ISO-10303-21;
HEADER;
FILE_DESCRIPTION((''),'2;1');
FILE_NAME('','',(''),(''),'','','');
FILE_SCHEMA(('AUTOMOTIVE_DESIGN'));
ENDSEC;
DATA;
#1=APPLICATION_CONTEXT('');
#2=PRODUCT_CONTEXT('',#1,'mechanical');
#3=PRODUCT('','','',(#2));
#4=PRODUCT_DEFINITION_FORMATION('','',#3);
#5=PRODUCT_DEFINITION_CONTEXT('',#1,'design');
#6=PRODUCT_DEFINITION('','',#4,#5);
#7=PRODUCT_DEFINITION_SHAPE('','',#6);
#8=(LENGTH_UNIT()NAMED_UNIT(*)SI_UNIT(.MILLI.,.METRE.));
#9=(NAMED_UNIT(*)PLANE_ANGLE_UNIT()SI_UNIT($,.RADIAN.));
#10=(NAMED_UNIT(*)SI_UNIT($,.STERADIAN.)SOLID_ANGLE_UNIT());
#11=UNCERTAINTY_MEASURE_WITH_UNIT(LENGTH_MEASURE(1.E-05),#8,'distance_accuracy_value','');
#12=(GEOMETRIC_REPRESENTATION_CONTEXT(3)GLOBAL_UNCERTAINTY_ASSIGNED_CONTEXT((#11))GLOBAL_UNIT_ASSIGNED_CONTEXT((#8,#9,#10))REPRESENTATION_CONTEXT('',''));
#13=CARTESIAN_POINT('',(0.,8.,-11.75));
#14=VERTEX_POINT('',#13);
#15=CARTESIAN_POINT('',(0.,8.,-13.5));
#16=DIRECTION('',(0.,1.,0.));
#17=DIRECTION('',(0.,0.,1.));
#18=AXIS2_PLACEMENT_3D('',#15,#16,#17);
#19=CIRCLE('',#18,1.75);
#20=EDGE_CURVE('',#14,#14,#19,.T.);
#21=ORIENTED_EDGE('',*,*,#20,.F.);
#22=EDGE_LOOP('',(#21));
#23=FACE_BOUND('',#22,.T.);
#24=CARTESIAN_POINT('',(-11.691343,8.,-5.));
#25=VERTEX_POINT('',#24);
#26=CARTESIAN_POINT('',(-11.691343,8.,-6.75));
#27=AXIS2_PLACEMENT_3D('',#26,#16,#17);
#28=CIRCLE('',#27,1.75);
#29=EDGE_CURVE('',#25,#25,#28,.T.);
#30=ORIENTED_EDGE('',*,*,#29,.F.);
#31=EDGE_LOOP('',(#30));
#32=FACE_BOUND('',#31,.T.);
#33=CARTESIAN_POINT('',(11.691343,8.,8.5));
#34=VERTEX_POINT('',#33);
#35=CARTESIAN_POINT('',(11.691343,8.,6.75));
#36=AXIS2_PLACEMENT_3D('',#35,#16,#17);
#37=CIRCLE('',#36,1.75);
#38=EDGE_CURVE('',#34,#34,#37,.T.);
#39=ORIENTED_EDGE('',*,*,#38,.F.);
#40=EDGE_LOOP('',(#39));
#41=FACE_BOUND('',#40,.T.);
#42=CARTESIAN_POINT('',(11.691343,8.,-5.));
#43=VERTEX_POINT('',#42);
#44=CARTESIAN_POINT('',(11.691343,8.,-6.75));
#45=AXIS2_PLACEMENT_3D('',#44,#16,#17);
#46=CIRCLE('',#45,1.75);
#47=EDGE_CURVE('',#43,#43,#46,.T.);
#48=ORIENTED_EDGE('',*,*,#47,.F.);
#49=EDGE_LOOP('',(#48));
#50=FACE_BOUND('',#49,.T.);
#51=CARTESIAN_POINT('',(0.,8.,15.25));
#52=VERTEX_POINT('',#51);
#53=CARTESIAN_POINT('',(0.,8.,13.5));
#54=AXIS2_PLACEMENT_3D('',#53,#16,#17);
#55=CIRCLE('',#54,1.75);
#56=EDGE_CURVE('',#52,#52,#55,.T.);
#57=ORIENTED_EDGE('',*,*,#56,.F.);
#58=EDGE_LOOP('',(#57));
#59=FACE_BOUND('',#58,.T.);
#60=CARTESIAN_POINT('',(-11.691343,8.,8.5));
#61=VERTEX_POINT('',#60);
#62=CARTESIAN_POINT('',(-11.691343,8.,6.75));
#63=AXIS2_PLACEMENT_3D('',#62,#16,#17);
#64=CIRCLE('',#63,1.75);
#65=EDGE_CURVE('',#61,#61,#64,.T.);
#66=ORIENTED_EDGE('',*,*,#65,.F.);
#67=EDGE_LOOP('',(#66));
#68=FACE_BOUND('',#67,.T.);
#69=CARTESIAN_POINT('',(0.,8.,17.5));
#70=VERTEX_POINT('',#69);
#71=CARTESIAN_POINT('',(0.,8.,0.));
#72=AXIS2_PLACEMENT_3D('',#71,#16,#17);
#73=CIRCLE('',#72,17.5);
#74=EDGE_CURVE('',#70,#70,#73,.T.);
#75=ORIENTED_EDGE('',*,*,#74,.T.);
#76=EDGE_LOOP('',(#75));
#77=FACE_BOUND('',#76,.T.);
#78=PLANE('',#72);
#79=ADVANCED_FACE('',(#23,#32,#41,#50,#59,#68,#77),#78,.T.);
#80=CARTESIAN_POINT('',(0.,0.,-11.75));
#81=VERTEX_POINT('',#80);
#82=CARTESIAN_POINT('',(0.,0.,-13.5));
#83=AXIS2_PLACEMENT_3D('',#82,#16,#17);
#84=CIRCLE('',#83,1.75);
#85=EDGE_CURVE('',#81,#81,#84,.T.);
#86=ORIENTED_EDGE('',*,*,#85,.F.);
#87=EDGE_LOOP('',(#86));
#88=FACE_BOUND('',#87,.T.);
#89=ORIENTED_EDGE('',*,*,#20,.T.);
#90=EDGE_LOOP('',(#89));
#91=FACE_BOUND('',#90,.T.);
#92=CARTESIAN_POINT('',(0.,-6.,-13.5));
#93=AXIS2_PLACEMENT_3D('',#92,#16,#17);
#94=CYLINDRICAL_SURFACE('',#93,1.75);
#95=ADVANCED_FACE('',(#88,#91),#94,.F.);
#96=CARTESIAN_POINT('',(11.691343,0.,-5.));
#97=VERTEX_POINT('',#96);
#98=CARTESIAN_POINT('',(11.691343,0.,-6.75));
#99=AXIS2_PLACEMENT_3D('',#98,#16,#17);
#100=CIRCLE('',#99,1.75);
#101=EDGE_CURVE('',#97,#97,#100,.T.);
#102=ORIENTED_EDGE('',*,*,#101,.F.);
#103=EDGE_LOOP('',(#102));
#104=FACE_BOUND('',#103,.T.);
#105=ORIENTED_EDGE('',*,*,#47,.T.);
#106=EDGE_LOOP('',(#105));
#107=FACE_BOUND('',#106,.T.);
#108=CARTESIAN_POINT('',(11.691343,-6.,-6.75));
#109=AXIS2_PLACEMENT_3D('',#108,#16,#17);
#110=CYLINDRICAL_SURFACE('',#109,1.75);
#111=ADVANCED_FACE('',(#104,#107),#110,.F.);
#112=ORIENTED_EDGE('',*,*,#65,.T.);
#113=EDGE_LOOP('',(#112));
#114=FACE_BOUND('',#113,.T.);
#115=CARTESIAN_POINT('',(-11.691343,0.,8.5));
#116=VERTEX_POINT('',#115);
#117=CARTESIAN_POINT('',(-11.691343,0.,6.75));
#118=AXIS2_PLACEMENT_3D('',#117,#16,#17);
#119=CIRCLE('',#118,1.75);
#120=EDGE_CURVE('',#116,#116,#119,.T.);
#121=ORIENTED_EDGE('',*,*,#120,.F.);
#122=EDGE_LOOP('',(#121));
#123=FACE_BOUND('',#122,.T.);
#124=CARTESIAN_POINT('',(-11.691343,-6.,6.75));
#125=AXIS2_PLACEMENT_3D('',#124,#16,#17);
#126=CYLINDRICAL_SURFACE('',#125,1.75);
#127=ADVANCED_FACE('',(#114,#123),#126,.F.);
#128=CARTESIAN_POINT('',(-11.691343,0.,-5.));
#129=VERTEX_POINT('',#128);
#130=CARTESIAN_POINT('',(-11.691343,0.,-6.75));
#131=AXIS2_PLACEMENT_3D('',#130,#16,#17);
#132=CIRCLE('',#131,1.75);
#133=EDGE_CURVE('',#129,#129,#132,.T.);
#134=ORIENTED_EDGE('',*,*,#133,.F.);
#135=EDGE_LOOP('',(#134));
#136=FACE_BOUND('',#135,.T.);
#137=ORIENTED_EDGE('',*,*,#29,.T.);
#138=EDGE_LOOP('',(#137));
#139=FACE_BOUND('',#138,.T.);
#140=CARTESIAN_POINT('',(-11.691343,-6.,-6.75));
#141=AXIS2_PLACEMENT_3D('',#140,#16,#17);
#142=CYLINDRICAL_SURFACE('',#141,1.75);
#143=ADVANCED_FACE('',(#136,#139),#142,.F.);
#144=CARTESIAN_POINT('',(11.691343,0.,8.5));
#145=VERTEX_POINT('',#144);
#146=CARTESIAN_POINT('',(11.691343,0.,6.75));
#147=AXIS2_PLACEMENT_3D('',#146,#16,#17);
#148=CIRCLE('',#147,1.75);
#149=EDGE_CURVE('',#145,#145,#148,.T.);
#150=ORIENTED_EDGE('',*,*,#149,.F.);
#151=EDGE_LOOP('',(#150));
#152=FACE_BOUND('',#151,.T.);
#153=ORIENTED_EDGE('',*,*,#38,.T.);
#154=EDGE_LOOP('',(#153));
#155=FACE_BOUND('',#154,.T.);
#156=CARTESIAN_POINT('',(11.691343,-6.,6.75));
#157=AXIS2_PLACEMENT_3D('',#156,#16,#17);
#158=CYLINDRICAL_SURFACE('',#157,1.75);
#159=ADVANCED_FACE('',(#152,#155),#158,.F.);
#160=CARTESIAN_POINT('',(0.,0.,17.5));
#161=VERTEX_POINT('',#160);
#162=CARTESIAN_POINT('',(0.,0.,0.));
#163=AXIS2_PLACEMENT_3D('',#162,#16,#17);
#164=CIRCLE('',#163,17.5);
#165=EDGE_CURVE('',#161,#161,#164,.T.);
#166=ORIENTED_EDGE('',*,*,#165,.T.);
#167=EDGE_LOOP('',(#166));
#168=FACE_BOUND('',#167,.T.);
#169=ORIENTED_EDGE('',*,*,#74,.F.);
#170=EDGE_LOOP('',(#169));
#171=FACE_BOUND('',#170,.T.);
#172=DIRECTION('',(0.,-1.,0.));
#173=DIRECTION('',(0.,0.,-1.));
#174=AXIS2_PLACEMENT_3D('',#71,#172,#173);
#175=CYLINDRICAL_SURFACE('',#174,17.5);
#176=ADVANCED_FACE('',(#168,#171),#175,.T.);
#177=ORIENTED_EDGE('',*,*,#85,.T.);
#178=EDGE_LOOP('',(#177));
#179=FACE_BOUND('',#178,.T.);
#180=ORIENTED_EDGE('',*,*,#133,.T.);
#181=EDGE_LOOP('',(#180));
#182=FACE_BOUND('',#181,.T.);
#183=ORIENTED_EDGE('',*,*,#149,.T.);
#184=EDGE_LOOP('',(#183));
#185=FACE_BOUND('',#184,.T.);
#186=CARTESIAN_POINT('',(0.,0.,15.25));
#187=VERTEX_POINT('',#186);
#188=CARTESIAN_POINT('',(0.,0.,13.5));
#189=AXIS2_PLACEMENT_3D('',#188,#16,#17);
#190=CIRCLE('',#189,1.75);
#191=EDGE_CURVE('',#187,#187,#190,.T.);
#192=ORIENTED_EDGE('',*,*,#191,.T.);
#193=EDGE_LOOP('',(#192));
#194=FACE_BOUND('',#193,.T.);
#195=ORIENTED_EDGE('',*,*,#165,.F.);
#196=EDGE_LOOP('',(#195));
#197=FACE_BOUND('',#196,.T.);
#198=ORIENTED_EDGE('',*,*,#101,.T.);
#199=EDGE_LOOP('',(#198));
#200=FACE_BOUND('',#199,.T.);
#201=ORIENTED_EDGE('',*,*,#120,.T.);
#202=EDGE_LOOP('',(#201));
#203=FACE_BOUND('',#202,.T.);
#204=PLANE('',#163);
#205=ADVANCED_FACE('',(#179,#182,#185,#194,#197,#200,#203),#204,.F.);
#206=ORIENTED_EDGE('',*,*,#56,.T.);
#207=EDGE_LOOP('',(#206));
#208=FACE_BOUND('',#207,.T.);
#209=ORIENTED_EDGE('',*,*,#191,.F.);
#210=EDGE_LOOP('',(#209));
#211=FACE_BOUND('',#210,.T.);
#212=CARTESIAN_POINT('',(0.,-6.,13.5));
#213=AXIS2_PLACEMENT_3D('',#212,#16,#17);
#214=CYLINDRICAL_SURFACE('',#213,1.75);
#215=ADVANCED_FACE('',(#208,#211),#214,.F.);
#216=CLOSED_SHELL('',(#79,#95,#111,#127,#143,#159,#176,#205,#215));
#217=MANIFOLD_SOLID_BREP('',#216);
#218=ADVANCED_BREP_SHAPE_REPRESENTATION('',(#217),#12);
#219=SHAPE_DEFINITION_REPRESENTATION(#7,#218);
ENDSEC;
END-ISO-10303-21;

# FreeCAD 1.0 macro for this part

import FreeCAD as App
import Part
import Sketcher
from FreeCAD import Vector
Q = App.Units.Quantity

doc = App.newDocument("Part")
params = doc.addObject("Spreadsheet::Sheet", "Params")
for row, (alias, value) in enumerate([
    ("sketch1_diameter", "35 mm"),
    ("pad1_length", "8 mm"),
    ("sketch2_diameter", "3.5 mm"),
    ("pocket1_length", "14 mm"),
], start=1):
    params.set(f"A{row}", alias)
    params.set(f"B{row}", "=" + value)
    params.setAlias(f"B{row}", alias)

body = doc.addObject("PartDesign::Body", "Body")

# Sketch on XZ plane
sketch1 = body.newObject("Sketcher::SketchObject", "Sketch")
sketch1.AttachmentSupport = (doc.getObject("XZ_Plane"), [""])
sketch1.MapMode = "FlatFace"
sketch1.addGeometry(Part.Circle(Vector(0, 0, 0), Vector(0, 0, 1), 18), False)
sketch1.addConstraint(Sketcher.Constraint("Coincident", 0, 3, -1, 1))
sketch1.addConstraint(Sketcher.Constraint("Diameter", 0, Q("35 mm")))
sketch1.setExpression("Constraints[1]", "Params.sketch1_diameter")
pad1 = body.newObject("PartDesign::Pad", "Pad")
pad1.Profile = sketch1
pad1.setExpression("Length", "Params.pad1_length")
pad1.Reversed = True

# Sketch on XZ plane
sketch2 = body.newObject("Sketcher::SketchObject", "Sketch001")
sketch2.AttachmentSupport = (doc.getObject("XZ_Plane"), [""])
sketch2.MapMode = "FlatFace"
sketch2.AttachmentOffset = App.Placement(Vector(0, 0, -8), App.Rotation())
sketch2.addGeometry(Part.Circle(Vector(0, -13.5, 0), Vector(0, 0, 1), 1.8), False)
sketch2.addGeometry(Part.Circle(Vector(11.7, -6.8, 0), Vector(0, 0, 1), 1.8), False)
sketch2.addGeometry(Part.Circle(Vector(11.7, 6.8, 0), Vector(0, 0, 1), 1.8), False)
sketch2.addGeometry(Part.Circle(Vector(0, 13.5, 0), Vector(0, 0, 1), 1.8), False)
sketch2.addGeometry(Part.Circle(Vector(-11.7, 6.8, 0), Vector(0, 0, 1), 1.8), False)
sketch2.addGeometry(Part.Circle(Vector(-11.7, -6.8, 0), Vector(0, 0, 1), 1.8), False)
sketch2.addConstraint(Sketcher.Constraint("Equal", 0, 1))
sketch2.addConstraint(Sketcher.Constraint("Equal", 1, 2))
sketch2.addConstraint(Sketcher.Constraint("Equal", 2, 3))
sketch2.addConstraint(Sketcher.Constraint("Equal", 3, 4))
sketch2.addConstraint(Sketcher.Constraint("Equal", 4, 5))
sketch2.addConstraint(Sketcher.Constraint("Symmetric", 0, 3, 3, 3, -1, 1))
sketch2.addConstraint(Sketcher.Constraint("Symmetric", 1, 3, 4, 3, -1, 1))
sketch2.addConstraint(Sketcher.Constraint("Symmetric", 2, 3, 5, 3, -1, 1))
sketch2.addConstraint(Sketcher.Constraint("Symmetric", 2, 3, 4, 3, -2))
sketch2.addConstraint(Sketcher.Constraint("PointOnObject", 0, 3, -2))
sketch2.addConstraint(Sketcher.Constraint("Diameter", 0, Q("3.5 mm")))
sketch2.addConstraint(Sketcher.Constraint("DistanceY", 0, 3, 3, 3, Q("27 mm")))
sketch2.addConstraint(Sketcher.Constraint("DistanceY", 1, 3, 2, 3, Q("13.5 mm")))
sketch2.addConstraint(Sketcher.Constraint("DistanceX", -1, 1, 1, 3, Q("11.691343 mm")))
sketch2.setExpression("Constraints[10]", "Params.sketch2_diameter")
pocket1 = body.newObject("PartDesign::Pocket", "Pocket")
pocket1.Profile = sketch2
pocket1.setExpression("Length", "Params.pocket1_length")
pocket1.Reversed = True

doc.recompute()
